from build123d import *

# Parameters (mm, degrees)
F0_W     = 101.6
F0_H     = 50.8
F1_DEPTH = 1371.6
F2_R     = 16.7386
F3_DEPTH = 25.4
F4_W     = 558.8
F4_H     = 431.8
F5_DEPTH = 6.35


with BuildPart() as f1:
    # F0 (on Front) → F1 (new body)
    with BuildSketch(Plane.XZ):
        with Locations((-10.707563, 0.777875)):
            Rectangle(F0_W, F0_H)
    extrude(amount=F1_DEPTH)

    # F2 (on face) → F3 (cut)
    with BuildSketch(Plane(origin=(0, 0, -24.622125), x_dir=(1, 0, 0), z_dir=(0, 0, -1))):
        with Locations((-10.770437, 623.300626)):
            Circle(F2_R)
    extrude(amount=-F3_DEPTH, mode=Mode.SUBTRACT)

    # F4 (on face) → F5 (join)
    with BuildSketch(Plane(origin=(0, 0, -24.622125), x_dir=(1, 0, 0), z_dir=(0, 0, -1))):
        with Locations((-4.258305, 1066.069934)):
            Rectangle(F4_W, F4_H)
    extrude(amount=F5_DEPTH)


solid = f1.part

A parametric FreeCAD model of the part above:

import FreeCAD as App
import Part
import Sketcher
from FreeCAD import Vector
Q = App.Units.Quantity

doc = App.newDocument("Part")
body = doc.addObject("PartDesign::Body", "Body")

sketch1 = body.newObject("Sketcher::SketchObject", "Sketch")
sketch1.AttachmentSupport = (doc.getObject("XZ_Plane"), [""])
sketch1.MapMode = "FlatFace"
sketch1.addGeometry([
    Part.LineSegment(Vector(-62, 26, 0), Vector(-62, -25, 0)),
    Part.LineSegment(Vector(-62, -25, 0), Vector(40, -25, 0)),
    Part.LineSegment(Vector(40, -25, 0), Vector(40, 26, 0)),
    Part.LineSegment(Vector(40, 26, 0), Vector(-62, 26, 0)),
], False)
sketch1.addConstraint([
    Sketcher.Constraint("Coincident", 0, 2, 1, 1),
    Sketcher.Constraint("Coincident", 1, 2, 2, 1),
    Sketcher.Constraint("Coincident", 2, 2, 3, 1),
    Sketcher.Constraint("Coincident", 3, 2, 0, 1),
    Sketcher.Constraint("Vertical", 0),
    Sketcher.Constraint("Horizontal", 1),
    Sketcher.Constraint("Vertical", 2),
    Sketcher.Constraint("Horizontal", 3),
    Sketcher.Constraint("DistanceX", 1, 1, 1, 2, Q("4 in")),
    Sketcher.Constraint("DistanceY", 0, 2, 0, 1, Q("2 in")),
    Sketcher.Constraint("DistanceX", 0, 2, -1, 1, 61.507563),
    Sketcher.Constraint("DistanceY", 0, 2, -1, 1, 24.622125),
])
pad1 = body.newObject("PartDesign::Pad", "Pad")
pad1.Profile = sketch1
pad1.Length = Q("54 in")

sketch2 = body.newObject("Sketcher::SketchObject", "Sketch001")
sketch2.AttachmentSupport = (doc.getObject("XY_Plane"), [""])
sketch2.MapMode = "FlatFace"
sketch2.AttachmentOffset = App.Placement(Vector(0, 0, -24.622125), App.Rotation())
sketch2.addGeometry(Part.Circle(Vector(-11, -623, 0), Vector(0, 0, 1), 17), False)
sketch2.addConstraint([
    Sketcher.Constraint("Diameter", 0, Q("1.318 in")),
    Sketcher.Constraint("DistanceX", 0, 3, -1, 1, 10.770437),
    Sketcher.Constraint("DistanceY", 0, 3, -1, 1, 623.300626),
])
pocket1 = body.newObject("PartDesign::Pocket", "Pocket")
pocket1.Profile = sketch2
pocket1.Length = Q("1 in")
pocket1.Reversed = True

sketch3 = body.newObject("Sketcher::SketchObject", "Sketch002")
sketch3.AttachmentSupport = (doc.getObject("XY_Plane"), [""])
sketch3.MapMode = "FlatFace"
sketch3.AttachmentOffset = App.Placement(Vector(0, 0, -24.622125), App.Rotation())
sketch3.addGeometry([
    Part.LineSegment(Vector(-284, -1282, 0), Vector(-284, -850, 0)),
    Part.LineSegment(Vector(-284, -850, 0), Vector(275, -850, 0)),
    Part.LineSegment(Vector(275, -850, 0), Vector(275, -1282, 0)),
    Part.LineSegment(Vector(275, -1282, 0), Vector(-284, -1282, 0)),
], False)
sketch3.addConstraint([
    Sketcher.Constraint("Coincident", 0, 2, 1, 1),
    Sketcher.Constraint("Coincident", 1, 2, 2, 1),
    Sketcher.Constraint("Coincident", 2, 2, 3, 1),
    Sketcher.Constraint("Coincident", 3, 2, 0, 1),
    Sketcher.Constraint("Vertical", 0),
    Sketcher.Constraint("Horizontal", 1),
    Sketcher.Constraint("Vertical", 2),
    Sketcher.Constraint("Horizontal", 3),
    Sketcher.Constraint("DistanceX", 1, 1, 1, 2, Q("22 in")),
    Sketcher.Constraint("DistanceY", 0, 1, 0, 2, Q("17 in")),
    Sketcher.Constraint("DistanceX", 0, 2, -1, 1, 283.658305),
    Sketcher.Constraint("DistanceY", 0, 2, -1, 1, 850.169934),
])
pad2 = body.newObject("PartDesign::Pad", "Pad001")
pad2.Profile = sketch3
pad2.Length = Q("0.25 in")
pad2.Reversed = True

doc.recompute()
